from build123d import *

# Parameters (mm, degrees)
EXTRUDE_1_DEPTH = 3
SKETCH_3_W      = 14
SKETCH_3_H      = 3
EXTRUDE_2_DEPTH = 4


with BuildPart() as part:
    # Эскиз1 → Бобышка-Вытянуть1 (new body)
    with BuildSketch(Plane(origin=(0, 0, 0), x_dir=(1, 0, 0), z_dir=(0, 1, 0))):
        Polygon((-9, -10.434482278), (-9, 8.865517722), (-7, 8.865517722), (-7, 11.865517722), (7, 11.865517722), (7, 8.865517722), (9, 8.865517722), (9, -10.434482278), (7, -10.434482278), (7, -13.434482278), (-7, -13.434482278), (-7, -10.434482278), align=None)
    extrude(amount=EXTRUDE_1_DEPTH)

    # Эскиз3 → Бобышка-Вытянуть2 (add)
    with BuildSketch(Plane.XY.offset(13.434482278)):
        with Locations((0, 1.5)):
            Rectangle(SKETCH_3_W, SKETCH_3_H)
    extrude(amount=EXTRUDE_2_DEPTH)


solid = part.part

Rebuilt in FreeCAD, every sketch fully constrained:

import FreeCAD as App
import Part
import Sketcher

V = App.Vector
Q = App.Units.Quantity


def add_polygon(sketch, points):
    """Adds a closed chain of lines whose ends are joined by coincident constraints."""
    first, n = sketch.GeometryCount, len(points)
    for a, b in zip(points, points[1:] + points[:1]):
        sketch.addGeometry(Part.LineSegment(App.Vector(*a, 0), App.Vector(*b, 0)), False)
    for i in range(n):
        sketch.addConstraint(Sketcher.Constraint("Coincident", first + i, 2, first + (i + 1) % n, 1))

doc = App.newDocument("Part")
body = doc.addObject("PartDesign::Body", "Body")

sketch1 = doc.addObject("Sketcher::SketchObject", "Sketch")
body.addObject(sketch1)
sketch1.AttachmentSupport = (doc.XZ_Plane, [""])
sketch1.MapMode = "FlatFace"
add_polygon(sketch1, [(-9, -8.865518), (-9, 10.434482), (-7, 10.434482), (-7, 13.434482), (7, 13.434482), (7, 10.434482), (9, 10.434482), (9, -8.865518), (7, -8.865518), (7, -11.865518), (-7, -11.865518), (-7, -8.865518)])
sketch1.addConstraint([
    Sketcher.Constraint("Vertical", 0),
    Sketcher.Constraint("Horizontal", 1),
    Sketcher.Constraint("Vertical", 2),
    Sketcher.Constraint("Horizontal", 3),
    Sketcher.Constraint("Vertical", 4),
    Sketcher.Constraint("Horizontal", 5),
    Sketcher.Constraint("Vertical", 6),
    Sketcher.Constraint("Horizontal", 7),
    Sketcher.Constraint("Vertical", 8),
    Sketcher.Constraint("Horizontal", 9),
    Sketcher.Constraint("Vertical", 10),
    Sketcher.Constraint("Horizontal", 11),
    Sketcher.Constraint("Symmetric", 1, 2, 4, 2, -2),
    Sketcher.Constraint("Symmetric", 7, 2, 10, 2, -2),
    Sketcher.Constraint("Vertical", 4, 2, 7, 2),
    Sketcher.Constraint("Equal", 1, 5),
    Sketcher.Constraint("Equal", 4, 8),
    Sketcher.Constraint("DistanceX", 1, 1, 1, 2, Q("2 mm")),
    Sketcher.Constraint("DistanceX", 3, 1, 3, 2, Q("14 mm")),
    Sketcher.Constraint("DistanceY", 2, 1, 2, 2, Q("3 mm")),
    Sketcher.Constraint("DistanceY", 0, 1, 0, 2, Q("19.3 mm")),
    Sketcher.Constraint("DistanceY", -1, 1, 0, 2, Q("10.434482 mm")),
])
pad1 = doc.addObject("PartDesign::Pad", "Pad")
body.addObject(pad1)
pad1.Profile = sketch1
pad1.Length = 3
pad1.Reversed = True

sketch2 = doc.addObject("Sketcher::SketchObject", "Sketch001")
body.addObject(sketch2)
sketch2.AttachmentSupport = (doc.XY_Plane, [""])
sketch2.MapMode = "FlatFace"
sketch2.AttachmentOffset = App.Placement(V(0, 0, 13.434482), App.Rotation())
add_polygon(sketch2, [(-7, 3), (-7, 0), (7, 0), (7, 3)])
sketch2.addConstraint([
    Sketcher.Constraint("Vertical", 0),
    Sketcher.Constraint("Horizontal", 1),
    Sketcher.Constraint("Vertical", 2),
    Sketcher.Constraint("Horizontal", 3),
    Sketcher.Constraint("Symmetric", 0, 2, 1, 2, -1, 1),
    Sketcher.Constraint("DistanceX", 1, 1, 1, 2, Q("14 mm")),
    Sketcher.Constraint("DistanceY", 0, 2, 0, 1, Q("3 mm")),
])
pad2 = doc.addObject("PartDesign::Pad", "Pad001")
body.addObject(pad2)
pad2.Profile = sketch2
pad2.Length = 4

doc.recompute()
